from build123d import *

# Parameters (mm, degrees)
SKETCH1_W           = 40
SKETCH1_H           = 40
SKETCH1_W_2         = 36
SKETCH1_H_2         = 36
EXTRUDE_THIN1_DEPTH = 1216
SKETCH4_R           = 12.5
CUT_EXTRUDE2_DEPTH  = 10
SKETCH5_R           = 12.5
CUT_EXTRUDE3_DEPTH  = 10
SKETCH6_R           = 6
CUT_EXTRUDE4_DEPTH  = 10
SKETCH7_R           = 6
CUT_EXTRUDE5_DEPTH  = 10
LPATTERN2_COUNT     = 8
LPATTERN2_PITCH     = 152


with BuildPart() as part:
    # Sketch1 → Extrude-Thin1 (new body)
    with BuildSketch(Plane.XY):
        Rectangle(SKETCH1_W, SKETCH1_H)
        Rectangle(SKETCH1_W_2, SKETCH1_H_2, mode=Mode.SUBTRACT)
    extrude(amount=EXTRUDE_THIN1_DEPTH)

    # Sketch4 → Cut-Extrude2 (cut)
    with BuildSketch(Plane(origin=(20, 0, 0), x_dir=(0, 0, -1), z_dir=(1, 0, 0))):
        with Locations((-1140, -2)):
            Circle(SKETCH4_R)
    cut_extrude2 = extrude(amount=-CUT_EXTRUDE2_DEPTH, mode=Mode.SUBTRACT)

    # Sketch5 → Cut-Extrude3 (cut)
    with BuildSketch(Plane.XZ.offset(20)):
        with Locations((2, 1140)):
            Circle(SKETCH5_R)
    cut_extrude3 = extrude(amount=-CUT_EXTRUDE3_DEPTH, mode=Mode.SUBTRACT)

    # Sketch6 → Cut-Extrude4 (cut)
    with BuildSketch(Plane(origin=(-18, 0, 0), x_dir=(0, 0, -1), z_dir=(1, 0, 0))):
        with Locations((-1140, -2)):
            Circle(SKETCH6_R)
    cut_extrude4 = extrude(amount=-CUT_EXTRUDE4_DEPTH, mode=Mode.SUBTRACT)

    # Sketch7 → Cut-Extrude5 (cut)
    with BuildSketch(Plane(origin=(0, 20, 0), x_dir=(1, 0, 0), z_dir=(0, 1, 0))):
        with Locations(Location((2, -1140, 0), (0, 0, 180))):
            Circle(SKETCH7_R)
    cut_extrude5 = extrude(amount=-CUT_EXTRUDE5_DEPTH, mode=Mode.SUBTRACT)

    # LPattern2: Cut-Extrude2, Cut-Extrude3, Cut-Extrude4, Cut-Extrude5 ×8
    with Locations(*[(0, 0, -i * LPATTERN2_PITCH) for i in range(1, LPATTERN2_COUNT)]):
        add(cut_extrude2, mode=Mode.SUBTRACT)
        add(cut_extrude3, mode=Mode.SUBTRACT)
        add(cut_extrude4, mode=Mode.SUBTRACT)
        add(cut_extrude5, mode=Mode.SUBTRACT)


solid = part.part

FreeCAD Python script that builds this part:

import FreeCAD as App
import Part
import Sketcher

V = App.Vector


def add_polygon(sketch, points):
    """Adds a closed chain of lines whose ends are joined by coincident constraints."""
    first, n = sketch.GeometryCount, len(points)
    for a, b in zip(points, points[1:] + points[:1]):
        sketch.addGeometry(Part.LineSegment(App.Vector(*a, 0), App.Vector(*b, 0)), False)
    for i in range(n):
        sketch.addConstraint(Sketcher.Constraint("Coincident", first + i, 2, first + (i + 1) % n, 1))

doc = App.newDocument("Part")
params = doc.addObject("Spreadsheet::Sheet", "Params")
for row, (alias, value) in enumerate([
    ("sketch1_width", "40 mm"),
    ("sketch1_width2", "36 mm"),
    ("pad1_length", "1216 mm"),
    ("sketch2_diameter", "25 mm"),
    ("pocket1_length", "10 mm"),
    ("sketch3_diameter", "25 mm"),
    ("pocket2_length", "10 mm"),
    ("sketch4_diameter", "12 mm"),
    ("pocket3_length", "10 mm"),
    ("sketch5_diameter", "12 mm"),
    ("pocket4_length", "10 mm"),
    ("linearpattern_pitch", "152 mm"),
], start=1):
    params.set(f"A{row}", alias)
    params.set(f"B{row}", "=" + value)
    params.setAlias(f"B{row}", alias)

body = doc.addObject("PartDesign::Body", "Body")

# Sketch on XY plane
sketch1 = doc.addObject("Sketcher::SketchObject", "Sketch")
body.addObject(sketch1)
sketch1.AttachmentSupport = (doc.XY_Plane, [""])
sketch1.MapMode = "FlatFace"
add_polygon(sketch1, [(-20, 20), (-20, -20), (20, -20), (20, 20)])  # lines 0-3
add_polygon(sketch1, [(18, -18), (-18, -18), (-18, 18), (18, 18)])  # lines 4-7
sketch1.addConstraint(Sketcher.Constraint("Vertical", 0))
sketch1.addConstraint(Sketcher.Constraint("Horizontal", 1))
sketch1.addConstraint(Sketcher.Constraint("Vertical", 2))
sketch1.addConstraint(Sketcher.Constraint("Horizontal", 3))
sketch1.addConstraint(Sketcher.Constraint("Horizontal", 4))
sketch1.addConstraint(Sketcher.Constraint("Vertical", 5))
sketch1.addConstraint(Sketcher.Constraint("Horizontal", 6))
sketch1.addConstraint(Sketcher.Constraint("Vertical", 7))
sketch1.addConstraint(Sketcher.Constraint("Symmetric", 0, 2, 2, 2, -1, 1))
sketch1.addConstraint(Sketcher.Constraint("Symmetric", 4, 2, 6, 2, -1, 1))
sketch1.addConstraint(Sketcher.Constraint("Equal", 3, 0))
sketch1.addConstraint(Sketcher.Constraint("Equal", 6, 5))
sketch1.addConstraint(Sketcher.Constraint("DistanceX", 1, 1, 1, 2, 40.0))
sketch1.addConstraint(Sketcher.Constraint("DistanceX", 4, 2, 4, 1, 36.0))
sketch1.setExpression("Constraints[20]", "Params.sketch1_width")
sketch1.setExpression("Constraints[21]", "Params.sketch1_width2")
pad1 = doc.addObject("PartDesign::Pad", "Pad")
body.addObject(pad1)
pad1.Profile = sketch1
pad1.setExpression("Length", "Params.pad1_length")

# Sketch on YZ plane
sketch2 = doc.addObject("Sketcher::SketchObject", "Sketch001")
body.addObject(sketch2)
sketch2.AttachmentSupport = (doc.YZ_Plane, [""])
sketch2.MapMode = "FlatFace"
sketch2.AttachmentOffset = App.Placement(V(0, 0, 20), App.Rotation())
sketch2.addGeometry(Part.Circle(V(-2, 1140, 0), V(0, 0, 1), 12), False)
sketch2.addConstraint(Sketcher.Constraint("Diameter", 0, 25.0))
sketch2.addConstraint(Sketcher.Constraint("DistanceX", 0, 3, -1, 1, 2.0))
sketch2.addConstraint(Sketcher.Constraint("DistanceY", -1, 1, 0, 3, 1140.0))
sketch2.setExpression("Constraints[0]", "Params.sketch2_diameter")
pocket1 = doc.addObject("PartDesign::Pocket", "Pocket")
body.addObject(pocket1)
pocket1.Profile = sketch2
pocket1.setExpression("Length", "Params.pocket1_length")

# Sketch on XZ plane
sketch3 = doc.addObject("Sketcher::SketchObject", "Sketch002")
body.addObject(sketch3)
sketch3.AttachmentSupport = (doc.XZ_Plane, [""])
sketch3.MapMode = "FlatFace"
sketch3.AttachmentOffset = App.Placement(V(0, 0, 20), App.Rotation())
sketch3.addGeometry(Part.Circle(V(2, 1140, 0), V(0, 0, 1), 12), False)
sketch3.addConstraint(Sketcher.Constraint("Diameter", 0, 25.0))
sketch3.addConstraint(Sketcher.Constraint("DistanceX", -1, 1, 0, 3, 2.0))
sketch3.addConstraint(Sketcher.Constraint("DistanceY", -1, 1, 0, 3, 1140.0))
sketch3.setExpression("Constraints[0]", "Params.sketch3_diameter")
pocket2 = doc.addObject("PartDesign::Pocket", "Pocket001")
body.addObject(pocket2)
pocket2.Profile = sketch3
pocket2.setExpression("Length", "Params.pocket2_length")

# Sketch on YZ plane
sketch4 = doc.addObject("Sketcher::SketchObject", "Sketch003")
body.addObject(sketch4)
sketch4.AttachmentSupport = (doc.YZ_Plane, [""])
sketch4.MapMode = "FlatFace"
sketch4.AttachmentOffset = App.Placement(V(0, 0, -18), App.Rotation())
sketch4.addGeometry(Part.Circle(V(-2, 1140, 0), V(0, 0, 1), 6), False)
sketch4.addConstraint(Sketcher.Constraint("Diameter", 0, 12.0))
sketch4.addConstraint(Sketcher.Constraint("DistanceX", 0, 3, -1, 1, 2.0))
sketch4.addConstraint(Sketcher.Constraint("DistanceY", -1, 1, 0, 3, 1140.0))
sketch4.setExpression("Constraints[0]", "Params.sketch4_diameter")
pocket3 = doc.addObject("PartDesign::Pocket", "Pocket002")
body.addObject(pocket3)
pocket3.Profile = sketch4
pocket3.setExpression("Length", "Params.pocket3_length")

# Sketch on XZ plane
sketch5 = doc.addObject("Sketcher::SketchObject", "Sketch004")
body.addObject(sketch5)
sketch5.AttachmentSupport = (doc.XZ_Plane, [""])
sketch5.MapMode = "FlatFace"
sketch5.AttachmentOffset = App.Placement(V(0, 0, -20), App.Rotation())
sketch5.addGeometry(Part.Circle(V(2, 1140, 0), V(0, 0, 1), 6), False)
sketch5.addConstraint(Sketcher.Constraint("Diameter", 0, 12.0))
sketch5.addConstraint(Sketcher.Constraint("DistanceX", -1, 1, 0, 3, 2.0))
sketch5.addConstraint(Sketcher.Constraint("DistanceY", -1, 1, 0, 3, 1140.0))
sketch5.setExpression("Constraints[0]", "Params.sketch5_diameter")
pocket4 = doc.addObject("PartDesign::Pocket", "Pocket003")
body.addObject(pocket4)
pocket4.Profile = sketch5
pocket4.setExpression("Length", "Params.pocket4_length")
pocket4.Reversed = True
doc.recompute()

linearpattern = doc.addObject("PartDesign::LinearPattern", "LinearPattern")
body.addObject(linearpattern)
linearpattern.Originals = [pocket1, pocket2, pocket3, pocket4]
linearpattern.Direction = (doc.Z_Axis, [""])
linearpattern.Mode = "offset"
linearpattern.setExpression("Offset", "Params.linearpattern_pitch")
linearpattern.Occurrences = 8
linearpattern.Reversed = True
body.Tip = linearpattern

doc.recompute()
